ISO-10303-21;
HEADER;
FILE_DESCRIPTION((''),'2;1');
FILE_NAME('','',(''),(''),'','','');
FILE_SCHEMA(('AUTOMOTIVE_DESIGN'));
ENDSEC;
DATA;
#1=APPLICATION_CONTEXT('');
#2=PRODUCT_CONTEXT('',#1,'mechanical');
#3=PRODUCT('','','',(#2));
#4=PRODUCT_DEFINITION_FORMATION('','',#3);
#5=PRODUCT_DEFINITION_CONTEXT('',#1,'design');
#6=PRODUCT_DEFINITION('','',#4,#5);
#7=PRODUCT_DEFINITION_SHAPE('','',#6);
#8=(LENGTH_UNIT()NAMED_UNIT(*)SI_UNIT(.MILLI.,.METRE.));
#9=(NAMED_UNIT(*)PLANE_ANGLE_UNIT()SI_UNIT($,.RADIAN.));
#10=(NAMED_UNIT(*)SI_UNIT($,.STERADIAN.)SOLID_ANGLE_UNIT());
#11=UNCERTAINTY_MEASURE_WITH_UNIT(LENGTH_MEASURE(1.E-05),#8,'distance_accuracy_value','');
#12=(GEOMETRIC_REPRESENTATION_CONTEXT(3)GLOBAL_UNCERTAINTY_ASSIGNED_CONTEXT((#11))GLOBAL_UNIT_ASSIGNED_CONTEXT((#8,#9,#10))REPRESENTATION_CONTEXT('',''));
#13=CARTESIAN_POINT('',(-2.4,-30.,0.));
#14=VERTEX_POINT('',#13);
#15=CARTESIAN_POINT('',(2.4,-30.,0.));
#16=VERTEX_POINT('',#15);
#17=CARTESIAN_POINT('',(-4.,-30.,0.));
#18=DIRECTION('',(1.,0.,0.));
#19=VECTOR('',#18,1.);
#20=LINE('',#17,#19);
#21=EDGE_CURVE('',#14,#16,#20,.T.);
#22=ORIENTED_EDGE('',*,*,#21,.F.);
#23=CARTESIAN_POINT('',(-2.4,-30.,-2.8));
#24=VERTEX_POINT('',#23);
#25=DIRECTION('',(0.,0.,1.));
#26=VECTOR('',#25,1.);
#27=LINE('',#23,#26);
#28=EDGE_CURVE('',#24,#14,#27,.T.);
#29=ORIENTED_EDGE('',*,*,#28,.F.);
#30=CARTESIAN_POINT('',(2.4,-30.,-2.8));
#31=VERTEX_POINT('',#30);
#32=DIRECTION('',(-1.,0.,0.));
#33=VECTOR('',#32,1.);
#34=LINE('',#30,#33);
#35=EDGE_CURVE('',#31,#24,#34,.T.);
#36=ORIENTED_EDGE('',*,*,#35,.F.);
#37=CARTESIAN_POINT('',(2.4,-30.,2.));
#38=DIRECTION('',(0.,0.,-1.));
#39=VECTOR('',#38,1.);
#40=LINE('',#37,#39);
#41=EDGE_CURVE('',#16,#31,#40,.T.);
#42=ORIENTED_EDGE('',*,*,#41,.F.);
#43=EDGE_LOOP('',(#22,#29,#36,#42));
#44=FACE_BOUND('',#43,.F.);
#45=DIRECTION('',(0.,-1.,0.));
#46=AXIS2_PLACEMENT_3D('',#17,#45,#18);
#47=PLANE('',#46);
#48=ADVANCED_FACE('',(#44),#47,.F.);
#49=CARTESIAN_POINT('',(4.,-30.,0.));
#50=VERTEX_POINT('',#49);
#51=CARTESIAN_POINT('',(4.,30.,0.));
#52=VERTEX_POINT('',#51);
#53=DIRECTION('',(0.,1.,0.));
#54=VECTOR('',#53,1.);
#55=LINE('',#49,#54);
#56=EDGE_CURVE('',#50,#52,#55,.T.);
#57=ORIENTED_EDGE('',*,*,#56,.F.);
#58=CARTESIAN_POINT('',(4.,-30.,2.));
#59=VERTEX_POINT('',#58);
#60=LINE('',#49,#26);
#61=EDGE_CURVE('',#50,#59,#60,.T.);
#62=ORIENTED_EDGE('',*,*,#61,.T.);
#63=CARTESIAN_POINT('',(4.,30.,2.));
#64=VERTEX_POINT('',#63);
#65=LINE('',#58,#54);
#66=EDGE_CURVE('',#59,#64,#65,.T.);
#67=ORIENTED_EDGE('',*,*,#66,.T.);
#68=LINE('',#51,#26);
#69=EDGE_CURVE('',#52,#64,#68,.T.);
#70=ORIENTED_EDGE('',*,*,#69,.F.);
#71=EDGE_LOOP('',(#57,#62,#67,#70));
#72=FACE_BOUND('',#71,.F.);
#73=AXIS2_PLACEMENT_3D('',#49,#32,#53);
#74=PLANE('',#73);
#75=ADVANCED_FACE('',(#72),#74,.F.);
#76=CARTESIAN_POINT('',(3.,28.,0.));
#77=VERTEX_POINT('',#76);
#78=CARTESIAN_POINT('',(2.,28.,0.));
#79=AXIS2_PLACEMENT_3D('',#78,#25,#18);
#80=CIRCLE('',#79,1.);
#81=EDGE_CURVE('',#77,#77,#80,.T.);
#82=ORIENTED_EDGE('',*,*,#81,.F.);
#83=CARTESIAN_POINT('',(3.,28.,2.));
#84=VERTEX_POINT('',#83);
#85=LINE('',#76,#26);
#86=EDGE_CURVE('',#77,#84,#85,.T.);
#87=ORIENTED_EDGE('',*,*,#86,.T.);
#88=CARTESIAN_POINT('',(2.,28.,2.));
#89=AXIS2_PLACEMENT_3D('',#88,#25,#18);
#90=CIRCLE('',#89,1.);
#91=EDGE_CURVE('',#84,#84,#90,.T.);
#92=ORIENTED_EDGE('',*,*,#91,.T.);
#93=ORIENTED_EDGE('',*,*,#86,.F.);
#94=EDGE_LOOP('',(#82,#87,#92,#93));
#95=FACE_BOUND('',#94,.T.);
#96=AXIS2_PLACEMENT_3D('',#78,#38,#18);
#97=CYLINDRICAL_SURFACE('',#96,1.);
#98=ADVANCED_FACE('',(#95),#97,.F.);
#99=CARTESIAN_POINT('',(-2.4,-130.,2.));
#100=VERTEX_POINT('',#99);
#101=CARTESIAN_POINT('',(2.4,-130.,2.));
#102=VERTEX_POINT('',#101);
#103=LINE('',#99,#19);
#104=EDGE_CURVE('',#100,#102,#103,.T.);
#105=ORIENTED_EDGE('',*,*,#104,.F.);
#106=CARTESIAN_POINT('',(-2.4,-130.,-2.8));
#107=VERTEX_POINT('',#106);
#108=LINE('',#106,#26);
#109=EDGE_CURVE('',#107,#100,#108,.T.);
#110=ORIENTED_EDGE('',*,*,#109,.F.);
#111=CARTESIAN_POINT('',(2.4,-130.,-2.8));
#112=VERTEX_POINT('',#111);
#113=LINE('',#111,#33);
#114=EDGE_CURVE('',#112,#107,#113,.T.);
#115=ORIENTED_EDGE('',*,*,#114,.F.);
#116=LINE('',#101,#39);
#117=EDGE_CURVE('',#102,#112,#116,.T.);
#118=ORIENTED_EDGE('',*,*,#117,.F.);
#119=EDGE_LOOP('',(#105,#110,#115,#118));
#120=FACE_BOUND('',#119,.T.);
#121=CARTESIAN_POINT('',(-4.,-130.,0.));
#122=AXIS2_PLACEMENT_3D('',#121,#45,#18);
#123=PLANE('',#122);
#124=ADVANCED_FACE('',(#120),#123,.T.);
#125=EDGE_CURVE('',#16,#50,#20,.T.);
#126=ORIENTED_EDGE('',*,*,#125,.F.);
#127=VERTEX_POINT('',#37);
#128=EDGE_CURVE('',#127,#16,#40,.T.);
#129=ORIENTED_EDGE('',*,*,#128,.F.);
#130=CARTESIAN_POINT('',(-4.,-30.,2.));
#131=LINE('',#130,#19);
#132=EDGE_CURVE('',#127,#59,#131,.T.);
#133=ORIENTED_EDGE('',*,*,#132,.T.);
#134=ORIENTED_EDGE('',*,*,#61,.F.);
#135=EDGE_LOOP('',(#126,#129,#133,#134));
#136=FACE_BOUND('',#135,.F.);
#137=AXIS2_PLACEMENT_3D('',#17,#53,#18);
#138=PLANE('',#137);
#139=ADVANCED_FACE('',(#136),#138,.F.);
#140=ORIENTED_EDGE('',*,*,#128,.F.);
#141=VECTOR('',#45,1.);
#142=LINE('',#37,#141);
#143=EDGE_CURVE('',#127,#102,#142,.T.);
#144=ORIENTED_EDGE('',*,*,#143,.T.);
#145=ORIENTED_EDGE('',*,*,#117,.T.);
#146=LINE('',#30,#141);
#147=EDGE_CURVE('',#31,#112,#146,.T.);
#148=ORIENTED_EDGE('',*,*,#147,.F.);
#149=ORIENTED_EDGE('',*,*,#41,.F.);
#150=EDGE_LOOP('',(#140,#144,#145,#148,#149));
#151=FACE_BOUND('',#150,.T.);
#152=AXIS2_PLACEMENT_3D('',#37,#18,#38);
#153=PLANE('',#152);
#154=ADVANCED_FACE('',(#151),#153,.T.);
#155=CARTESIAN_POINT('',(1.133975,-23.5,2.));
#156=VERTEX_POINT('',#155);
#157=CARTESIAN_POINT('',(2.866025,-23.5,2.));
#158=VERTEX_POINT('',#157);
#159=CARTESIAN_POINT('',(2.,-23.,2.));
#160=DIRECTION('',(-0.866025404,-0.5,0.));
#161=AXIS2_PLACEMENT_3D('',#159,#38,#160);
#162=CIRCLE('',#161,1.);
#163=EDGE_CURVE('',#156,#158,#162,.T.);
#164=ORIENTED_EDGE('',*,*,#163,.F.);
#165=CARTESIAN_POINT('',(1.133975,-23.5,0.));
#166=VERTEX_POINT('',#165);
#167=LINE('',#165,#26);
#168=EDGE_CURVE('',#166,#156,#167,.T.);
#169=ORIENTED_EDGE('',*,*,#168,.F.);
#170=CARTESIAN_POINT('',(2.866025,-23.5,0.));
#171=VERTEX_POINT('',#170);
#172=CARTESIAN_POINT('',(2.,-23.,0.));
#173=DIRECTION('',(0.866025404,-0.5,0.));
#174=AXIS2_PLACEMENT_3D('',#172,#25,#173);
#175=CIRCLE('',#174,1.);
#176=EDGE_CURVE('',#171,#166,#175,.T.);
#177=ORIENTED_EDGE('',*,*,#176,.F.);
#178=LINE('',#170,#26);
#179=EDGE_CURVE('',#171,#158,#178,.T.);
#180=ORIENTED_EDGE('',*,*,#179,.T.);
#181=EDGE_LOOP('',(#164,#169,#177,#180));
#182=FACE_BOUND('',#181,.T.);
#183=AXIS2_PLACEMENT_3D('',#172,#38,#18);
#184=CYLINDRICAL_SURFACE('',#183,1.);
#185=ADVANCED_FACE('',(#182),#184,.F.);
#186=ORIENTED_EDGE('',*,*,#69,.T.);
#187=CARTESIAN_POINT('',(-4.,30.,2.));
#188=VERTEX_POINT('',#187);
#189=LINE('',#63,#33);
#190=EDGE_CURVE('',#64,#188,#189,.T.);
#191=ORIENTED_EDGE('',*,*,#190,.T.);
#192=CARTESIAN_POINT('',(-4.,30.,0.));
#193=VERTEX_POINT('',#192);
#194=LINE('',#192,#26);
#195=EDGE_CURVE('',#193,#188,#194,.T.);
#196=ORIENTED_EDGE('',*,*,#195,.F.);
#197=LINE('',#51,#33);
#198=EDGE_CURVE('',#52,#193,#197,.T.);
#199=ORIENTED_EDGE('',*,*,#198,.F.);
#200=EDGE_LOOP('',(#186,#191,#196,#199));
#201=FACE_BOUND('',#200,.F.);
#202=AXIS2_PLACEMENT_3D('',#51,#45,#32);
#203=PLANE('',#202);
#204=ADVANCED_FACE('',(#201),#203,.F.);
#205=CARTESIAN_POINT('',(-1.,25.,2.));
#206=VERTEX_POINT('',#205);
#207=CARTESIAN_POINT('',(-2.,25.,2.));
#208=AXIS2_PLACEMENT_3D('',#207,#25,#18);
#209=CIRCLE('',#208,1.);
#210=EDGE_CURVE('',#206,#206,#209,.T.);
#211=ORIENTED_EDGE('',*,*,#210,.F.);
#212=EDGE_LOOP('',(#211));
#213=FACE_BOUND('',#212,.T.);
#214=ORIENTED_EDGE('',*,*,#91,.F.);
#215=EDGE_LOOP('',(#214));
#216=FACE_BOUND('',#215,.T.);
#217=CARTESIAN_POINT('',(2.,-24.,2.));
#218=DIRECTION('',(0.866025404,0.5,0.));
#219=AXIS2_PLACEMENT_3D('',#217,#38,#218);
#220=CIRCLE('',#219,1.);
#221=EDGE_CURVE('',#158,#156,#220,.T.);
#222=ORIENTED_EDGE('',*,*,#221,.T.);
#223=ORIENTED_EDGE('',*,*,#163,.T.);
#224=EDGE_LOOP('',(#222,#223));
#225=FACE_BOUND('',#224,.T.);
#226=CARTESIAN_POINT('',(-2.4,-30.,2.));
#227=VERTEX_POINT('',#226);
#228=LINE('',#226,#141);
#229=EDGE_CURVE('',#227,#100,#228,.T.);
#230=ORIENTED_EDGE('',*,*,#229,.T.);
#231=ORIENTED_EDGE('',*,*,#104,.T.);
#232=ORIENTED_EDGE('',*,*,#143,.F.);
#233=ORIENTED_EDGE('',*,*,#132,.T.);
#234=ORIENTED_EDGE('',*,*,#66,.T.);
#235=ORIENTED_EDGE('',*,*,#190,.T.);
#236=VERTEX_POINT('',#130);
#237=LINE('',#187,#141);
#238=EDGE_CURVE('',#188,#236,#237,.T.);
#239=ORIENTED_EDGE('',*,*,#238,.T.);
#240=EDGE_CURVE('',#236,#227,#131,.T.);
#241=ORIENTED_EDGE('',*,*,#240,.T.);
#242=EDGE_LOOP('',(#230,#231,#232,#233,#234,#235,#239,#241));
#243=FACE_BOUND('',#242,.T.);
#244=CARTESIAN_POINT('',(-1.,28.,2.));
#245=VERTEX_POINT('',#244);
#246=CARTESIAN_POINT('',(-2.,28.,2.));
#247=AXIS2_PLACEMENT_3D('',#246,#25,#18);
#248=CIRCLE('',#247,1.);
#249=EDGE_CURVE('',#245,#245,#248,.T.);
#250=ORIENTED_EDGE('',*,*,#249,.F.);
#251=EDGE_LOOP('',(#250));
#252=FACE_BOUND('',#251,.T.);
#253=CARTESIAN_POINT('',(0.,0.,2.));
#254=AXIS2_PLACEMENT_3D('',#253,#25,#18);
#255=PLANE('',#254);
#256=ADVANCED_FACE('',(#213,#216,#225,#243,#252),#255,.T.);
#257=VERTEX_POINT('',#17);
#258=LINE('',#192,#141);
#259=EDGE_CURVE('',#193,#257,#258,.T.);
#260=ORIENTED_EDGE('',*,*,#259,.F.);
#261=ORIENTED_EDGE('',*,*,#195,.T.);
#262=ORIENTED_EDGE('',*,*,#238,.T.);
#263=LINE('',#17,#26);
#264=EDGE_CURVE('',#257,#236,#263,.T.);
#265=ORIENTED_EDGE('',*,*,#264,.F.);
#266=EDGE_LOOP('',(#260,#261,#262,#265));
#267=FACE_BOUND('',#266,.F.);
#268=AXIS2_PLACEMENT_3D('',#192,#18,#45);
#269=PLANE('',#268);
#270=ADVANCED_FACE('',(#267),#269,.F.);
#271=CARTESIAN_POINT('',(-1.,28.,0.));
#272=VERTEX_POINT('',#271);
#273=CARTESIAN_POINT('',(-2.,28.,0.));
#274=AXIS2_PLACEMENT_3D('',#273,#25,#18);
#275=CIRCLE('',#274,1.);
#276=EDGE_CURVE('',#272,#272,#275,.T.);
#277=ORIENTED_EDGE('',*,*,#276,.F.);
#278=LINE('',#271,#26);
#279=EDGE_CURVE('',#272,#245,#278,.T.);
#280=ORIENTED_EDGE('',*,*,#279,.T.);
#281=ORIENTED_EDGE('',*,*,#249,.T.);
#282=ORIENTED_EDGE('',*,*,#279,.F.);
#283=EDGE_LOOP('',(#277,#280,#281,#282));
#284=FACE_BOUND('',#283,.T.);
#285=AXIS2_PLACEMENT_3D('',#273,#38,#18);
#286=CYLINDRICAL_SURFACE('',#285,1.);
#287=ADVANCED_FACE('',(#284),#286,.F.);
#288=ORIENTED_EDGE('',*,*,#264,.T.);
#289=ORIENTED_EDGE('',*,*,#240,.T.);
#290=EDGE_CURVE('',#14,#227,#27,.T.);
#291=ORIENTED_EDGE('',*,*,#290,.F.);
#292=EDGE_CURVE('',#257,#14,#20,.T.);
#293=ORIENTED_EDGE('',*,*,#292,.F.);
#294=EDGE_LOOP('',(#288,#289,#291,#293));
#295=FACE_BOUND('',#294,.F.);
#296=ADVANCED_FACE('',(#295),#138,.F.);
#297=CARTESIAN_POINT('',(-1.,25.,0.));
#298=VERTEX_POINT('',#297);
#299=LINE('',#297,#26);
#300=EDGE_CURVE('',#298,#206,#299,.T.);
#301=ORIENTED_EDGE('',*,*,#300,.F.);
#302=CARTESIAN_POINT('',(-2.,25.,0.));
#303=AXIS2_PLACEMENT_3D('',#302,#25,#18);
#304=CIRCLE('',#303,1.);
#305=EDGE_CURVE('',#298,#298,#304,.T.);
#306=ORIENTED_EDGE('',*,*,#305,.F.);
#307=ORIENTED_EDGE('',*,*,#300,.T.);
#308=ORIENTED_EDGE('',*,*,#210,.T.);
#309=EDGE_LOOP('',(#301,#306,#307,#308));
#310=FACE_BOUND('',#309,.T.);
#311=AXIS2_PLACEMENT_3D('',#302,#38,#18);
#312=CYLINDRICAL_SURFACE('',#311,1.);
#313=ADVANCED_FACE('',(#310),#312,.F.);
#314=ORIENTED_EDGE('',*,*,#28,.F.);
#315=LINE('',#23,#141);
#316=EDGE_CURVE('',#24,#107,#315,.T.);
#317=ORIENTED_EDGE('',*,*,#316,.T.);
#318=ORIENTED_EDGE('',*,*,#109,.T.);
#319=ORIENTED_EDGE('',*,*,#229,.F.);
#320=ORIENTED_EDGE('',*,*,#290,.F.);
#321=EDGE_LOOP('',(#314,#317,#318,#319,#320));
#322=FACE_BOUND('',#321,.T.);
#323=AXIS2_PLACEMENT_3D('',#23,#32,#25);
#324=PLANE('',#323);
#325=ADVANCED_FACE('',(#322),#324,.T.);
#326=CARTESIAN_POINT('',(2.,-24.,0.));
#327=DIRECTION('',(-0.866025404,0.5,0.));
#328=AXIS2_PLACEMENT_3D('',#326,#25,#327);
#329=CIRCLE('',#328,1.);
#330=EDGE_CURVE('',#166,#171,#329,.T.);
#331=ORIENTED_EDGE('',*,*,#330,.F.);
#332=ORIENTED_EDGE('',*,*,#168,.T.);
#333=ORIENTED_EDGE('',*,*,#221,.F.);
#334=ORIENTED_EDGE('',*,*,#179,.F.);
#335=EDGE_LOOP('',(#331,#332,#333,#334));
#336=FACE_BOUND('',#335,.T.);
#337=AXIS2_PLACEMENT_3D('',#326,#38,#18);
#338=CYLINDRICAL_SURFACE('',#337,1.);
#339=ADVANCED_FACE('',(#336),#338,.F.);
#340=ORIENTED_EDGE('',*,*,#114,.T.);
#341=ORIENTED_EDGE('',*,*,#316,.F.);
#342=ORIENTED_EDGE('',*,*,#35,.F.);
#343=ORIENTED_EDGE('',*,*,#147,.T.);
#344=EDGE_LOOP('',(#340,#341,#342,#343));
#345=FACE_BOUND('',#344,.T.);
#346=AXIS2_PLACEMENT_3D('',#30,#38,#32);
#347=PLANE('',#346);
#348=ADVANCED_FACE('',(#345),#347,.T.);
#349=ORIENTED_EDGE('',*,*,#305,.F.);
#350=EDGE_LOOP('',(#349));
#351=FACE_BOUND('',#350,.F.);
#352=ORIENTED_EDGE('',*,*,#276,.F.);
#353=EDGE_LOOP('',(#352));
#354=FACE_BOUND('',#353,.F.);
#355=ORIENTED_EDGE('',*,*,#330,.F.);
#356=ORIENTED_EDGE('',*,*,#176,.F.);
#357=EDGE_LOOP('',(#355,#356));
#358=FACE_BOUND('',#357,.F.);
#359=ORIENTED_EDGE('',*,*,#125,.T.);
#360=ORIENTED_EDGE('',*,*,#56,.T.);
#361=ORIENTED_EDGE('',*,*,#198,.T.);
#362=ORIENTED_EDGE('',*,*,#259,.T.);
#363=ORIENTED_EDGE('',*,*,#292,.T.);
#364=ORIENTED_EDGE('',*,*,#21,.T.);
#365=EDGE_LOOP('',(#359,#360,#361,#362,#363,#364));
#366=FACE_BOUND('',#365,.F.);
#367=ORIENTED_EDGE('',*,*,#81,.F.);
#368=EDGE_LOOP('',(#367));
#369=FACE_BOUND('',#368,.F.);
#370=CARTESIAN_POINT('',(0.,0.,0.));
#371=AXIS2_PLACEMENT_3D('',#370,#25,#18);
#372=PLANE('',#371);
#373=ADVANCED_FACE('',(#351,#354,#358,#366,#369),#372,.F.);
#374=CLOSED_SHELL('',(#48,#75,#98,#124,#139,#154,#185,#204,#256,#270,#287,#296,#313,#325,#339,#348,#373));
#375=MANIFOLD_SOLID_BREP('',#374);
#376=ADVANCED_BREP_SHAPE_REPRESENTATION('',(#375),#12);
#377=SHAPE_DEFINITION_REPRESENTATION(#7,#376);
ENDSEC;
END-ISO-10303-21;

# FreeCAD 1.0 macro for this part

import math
import FreeCAD as App
import Part
import Sketcher
Q = App.Units.Quantity


def add_polygon(sketch, points):
    """Adds a closed chain of lines whose ends are joined by coincident constraints."""
    first, n = sketch.GeometryCount, len(points)
    for a, b in zip(points, points[1:] + points[:1]):
        sketch.addGeometry(Part.LineSegment(App.Vector(*a, 0), App.Vector(*b, 0)), False)
    for i in range(n):
        sketch.addConstraint(Sketcher.Constraint("Coincident", first + i, 2, first + (i + 1) % n, 1))

doc = App.newDocument("Part")
params = doc.addObject("Spreadsheet::Sheet", "Params")
for row, (alias, value) in enumerate([
    ("sketch1_diameter", "2 mm"),
    ("sketch1_width", "8 mm"),
    ("sketch1_height", "60 mm"),
    ("pad1_length", "2 mm"),
    ("sketch2_width", "4.8 mm"),
    ("pad2_length", "100 mm"),
], start=1):
    params.set(f"A{row}", alias)
    params.set(f"B{row}", "=" + value)
    params.setAlias(f"B{row}", alias)

body = doc.addObject("PartDesign::Body", "Body")

sketch1 = body.newObject("Sketcher::SketchObject", "Sketch")
sketch1.AttachmentSupport = (doc.getObject("XY_Plane"), [""])
sketch1.MapMode = "FlatFace"
add_polygon(sketch1, [(-4, 30), (-4, -30), (4, -30), (4, 30)])
sketch1.addGeometry(Part.ArcOfCircle(Part.Circle(App.Vector(2, -24, 0), App.Vector(0, 0, 1), 1), math.radians(150), math.radians(390)), False)
sketch1.addGeometry(Part.ArcOfCircle(Part.Circle(App.Vector(2, -23, 0), App.Vector(0, 0, 1), 1), math.radians(-30), math.radians(210)), False)
sketch1.addGeometry(Part.Circle(App.Vector(-2, 25, 0), App.Vector(0, 0, 1), 1), False)
sketch1.addGeometry(Part.Circle(App.Vector(-2, 28, 0), App.Vector(0, 0, 1), 1), False)
sketch1.addGeometry(Part.Circle(App.Vector(2, 28, 0), App.Vector(0, 0, 1), 1), False)
sketch1.addConstraint([
    Sketcher.Constraint("Coincident", 4, 1, 5, 2),
    Sketcher.Constraint("Coincident", 5, 1, 4, 2),
    Sketcher.Constraint("Vertical", 0),
    Sketcher.Constraint("Horizontal", 1),
    Sketcher.Constraint("Vertical", 2),
    Sketcher.Constraint("Horizontal", 3),
    Sketcher.Constraint("Equal", 4, 5),
    Sketcher.Constraint("Equal", 5, 6),
    Sketcher.Constraint("Equal", 6, 7),
    Sketcher.Constraint("Equal", 7, 8),
    Sketcher.Constraint("Symmetric", 0, 2, 2, 2, -1, 1),
    Sketcher.Constraint("Symmetric", 7, 3, 8, 3, -2),
    Sketcher.Constraint("Horizontal", 4, 1, 5, 1),
    Sketcher.Constraint("Vertical", 6, 3, 7, 3),
    Sketcher.Constraint("Vertical", 5, 3, 8, 3),
    Sketcher.Constraint("Diameter", 6, Q("2 mm")),
    Sketcher.Constraint("DistanceX", 1, 1, 1, 2, Q("8 mm")),
    Sketcher.Constraint("DistanceY", 0, 2, 0, 1, Q("60 mm")),
    Sketcher.Constraint("DistanceX", -1, 1, 4, 3, Q("2 mm")),
    Sketcher.Constraint("DistanceY", 6, 3, 7, 3, Q("3 mm")),
    Sketcher.Constraint("DistanceY", 0, 2, 4, 3, Q("6 mm")),
    Sketcher.Constraint("DistanceY", 8, 3, 2, 2, Q("2 mm")),
    Sketcher.Constraint("DistanceY", 5, 3, -1, 1, Q("23 mm")),
])
sketch1.setExpression("Constraints[19]", "Params.sketch1_diameter")
sketch1.setExpression("Constraints[20]", "Params.sketch1_width")
sketch1.setExpression("Constraints[21]", "Params.sketch1_height")
pad1 = body.newObject("PartDesign::Pad", "Pad")
pad1.Profile = sketch1
pad1.setExpression("Length", "Params.pad1_length")

sketch2 = body.newObject("Sketcher::SketchObject", "Sketch001")
sketch2.AttachmentSupport = (doc.getObject("XZ_Plane"), [""])
sketch2.MapMode = "FlatFace"
sketch2.AttachmentOffset = App.Placement(App.Vector(0, 0, 30), App.Rotation())
add_polygon(sketch2, [(2.4, 2), (-2.4, 2), (-2.4, -2.8), (2.4, -2.8)])
sketch2.addConstraint([
    Sketcher.Constraint("Horizontal", 0),
    Sketcher.Constraint("Vertical", 1),
    Sketcher.Constraint("Horizontal", 2),
    Sketcher.Constraint("Vertical", 3),
    Sketcher.Constraint("Equal", 2, 1),
    Sketcher.Constraint("DistanceX", 0, 2, 0, 1, Q("4.8 mm")),
    Sketcher.Constraint("DistanceY", -1, 1, 0, 2, Q("2 mm")),
    Sketcher.Constraint("DistanceX", 0, 2, -1, 1, Q("2.4 mm")),
])
sketch2.setExpression("Constraints[9]", "Params.sketch2_width")
pad2 = body.newObject("PartDesign::Pad", "Pad001")
pad2.Profile = sketch2
pad2.setExpression("Length", "Params.pad2_length")

doc.recompute()
